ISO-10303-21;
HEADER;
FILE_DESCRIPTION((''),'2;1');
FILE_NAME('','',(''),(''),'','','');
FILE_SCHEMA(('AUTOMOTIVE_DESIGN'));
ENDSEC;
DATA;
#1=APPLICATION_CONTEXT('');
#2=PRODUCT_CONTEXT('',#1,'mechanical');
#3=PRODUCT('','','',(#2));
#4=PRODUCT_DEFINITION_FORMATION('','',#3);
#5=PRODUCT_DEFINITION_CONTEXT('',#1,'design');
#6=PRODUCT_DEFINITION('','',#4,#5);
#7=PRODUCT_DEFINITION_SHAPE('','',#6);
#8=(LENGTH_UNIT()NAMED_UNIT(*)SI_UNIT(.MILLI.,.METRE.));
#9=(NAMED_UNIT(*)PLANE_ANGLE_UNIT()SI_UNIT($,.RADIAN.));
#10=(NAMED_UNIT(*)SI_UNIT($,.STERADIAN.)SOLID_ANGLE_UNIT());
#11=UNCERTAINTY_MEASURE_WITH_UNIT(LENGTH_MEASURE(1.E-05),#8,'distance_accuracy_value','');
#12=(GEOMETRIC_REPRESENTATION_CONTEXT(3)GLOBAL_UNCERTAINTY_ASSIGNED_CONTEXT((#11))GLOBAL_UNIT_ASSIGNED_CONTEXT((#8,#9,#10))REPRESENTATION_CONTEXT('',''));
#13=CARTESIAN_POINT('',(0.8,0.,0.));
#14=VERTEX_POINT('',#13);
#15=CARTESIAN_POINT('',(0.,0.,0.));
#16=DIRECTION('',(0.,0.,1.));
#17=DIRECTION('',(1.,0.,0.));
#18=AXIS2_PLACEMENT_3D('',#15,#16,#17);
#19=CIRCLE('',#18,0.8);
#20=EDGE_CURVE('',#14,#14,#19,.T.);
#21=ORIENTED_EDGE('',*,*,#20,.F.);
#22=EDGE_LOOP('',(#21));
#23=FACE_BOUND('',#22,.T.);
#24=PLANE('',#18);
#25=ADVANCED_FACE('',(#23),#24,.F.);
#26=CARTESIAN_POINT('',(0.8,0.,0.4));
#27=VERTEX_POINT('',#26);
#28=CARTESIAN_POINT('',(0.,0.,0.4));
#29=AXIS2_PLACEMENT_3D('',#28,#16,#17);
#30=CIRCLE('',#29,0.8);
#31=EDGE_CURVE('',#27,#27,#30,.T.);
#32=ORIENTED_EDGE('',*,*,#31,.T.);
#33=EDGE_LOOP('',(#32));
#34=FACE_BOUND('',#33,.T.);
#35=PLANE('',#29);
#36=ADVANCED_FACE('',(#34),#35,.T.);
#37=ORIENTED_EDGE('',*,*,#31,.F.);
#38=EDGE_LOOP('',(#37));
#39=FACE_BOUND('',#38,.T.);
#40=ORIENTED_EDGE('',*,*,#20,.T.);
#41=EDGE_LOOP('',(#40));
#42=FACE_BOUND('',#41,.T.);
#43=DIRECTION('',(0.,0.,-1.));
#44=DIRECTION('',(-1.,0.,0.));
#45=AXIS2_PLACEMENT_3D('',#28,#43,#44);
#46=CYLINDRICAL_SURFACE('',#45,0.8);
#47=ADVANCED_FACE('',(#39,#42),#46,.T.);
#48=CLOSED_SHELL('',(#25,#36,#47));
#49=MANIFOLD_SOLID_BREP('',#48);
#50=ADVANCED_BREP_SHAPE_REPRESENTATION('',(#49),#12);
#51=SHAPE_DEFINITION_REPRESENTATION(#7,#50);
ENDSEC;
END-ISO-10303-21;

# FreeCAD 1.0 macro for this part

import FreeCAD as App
import Part
import Sketcher

V = App.Vector

doc = App.newDocument("Part")
body = doc.addObject("PartDesign::Body", "Body")

sketch1 = doc.addObject("Sketcher::SketchObject", "Sketch")
body.addObject(sketch1)
sketch1.AttachmentSupport = (doc.XY_Plane, [""])
sketch1.MapMode = "FlatFace"
sketch1.addGeometry(Part.Circle(V(0, 0, 0), V(0, 0, 1), 0.8), False)
sketch1.addConstraint([
    Sketcher.Constraint("Coincident", 0, 3, -1, 1),
    Sketcher.Constraint("Diameter", 0, 1.6),
])
pad1 = doc.addObject("PartDesign::Pad", "Pad")
body.addObject(pad1)
pad1.Profile = sketch1
pad1.Length = 0.4

doc.recompute()
